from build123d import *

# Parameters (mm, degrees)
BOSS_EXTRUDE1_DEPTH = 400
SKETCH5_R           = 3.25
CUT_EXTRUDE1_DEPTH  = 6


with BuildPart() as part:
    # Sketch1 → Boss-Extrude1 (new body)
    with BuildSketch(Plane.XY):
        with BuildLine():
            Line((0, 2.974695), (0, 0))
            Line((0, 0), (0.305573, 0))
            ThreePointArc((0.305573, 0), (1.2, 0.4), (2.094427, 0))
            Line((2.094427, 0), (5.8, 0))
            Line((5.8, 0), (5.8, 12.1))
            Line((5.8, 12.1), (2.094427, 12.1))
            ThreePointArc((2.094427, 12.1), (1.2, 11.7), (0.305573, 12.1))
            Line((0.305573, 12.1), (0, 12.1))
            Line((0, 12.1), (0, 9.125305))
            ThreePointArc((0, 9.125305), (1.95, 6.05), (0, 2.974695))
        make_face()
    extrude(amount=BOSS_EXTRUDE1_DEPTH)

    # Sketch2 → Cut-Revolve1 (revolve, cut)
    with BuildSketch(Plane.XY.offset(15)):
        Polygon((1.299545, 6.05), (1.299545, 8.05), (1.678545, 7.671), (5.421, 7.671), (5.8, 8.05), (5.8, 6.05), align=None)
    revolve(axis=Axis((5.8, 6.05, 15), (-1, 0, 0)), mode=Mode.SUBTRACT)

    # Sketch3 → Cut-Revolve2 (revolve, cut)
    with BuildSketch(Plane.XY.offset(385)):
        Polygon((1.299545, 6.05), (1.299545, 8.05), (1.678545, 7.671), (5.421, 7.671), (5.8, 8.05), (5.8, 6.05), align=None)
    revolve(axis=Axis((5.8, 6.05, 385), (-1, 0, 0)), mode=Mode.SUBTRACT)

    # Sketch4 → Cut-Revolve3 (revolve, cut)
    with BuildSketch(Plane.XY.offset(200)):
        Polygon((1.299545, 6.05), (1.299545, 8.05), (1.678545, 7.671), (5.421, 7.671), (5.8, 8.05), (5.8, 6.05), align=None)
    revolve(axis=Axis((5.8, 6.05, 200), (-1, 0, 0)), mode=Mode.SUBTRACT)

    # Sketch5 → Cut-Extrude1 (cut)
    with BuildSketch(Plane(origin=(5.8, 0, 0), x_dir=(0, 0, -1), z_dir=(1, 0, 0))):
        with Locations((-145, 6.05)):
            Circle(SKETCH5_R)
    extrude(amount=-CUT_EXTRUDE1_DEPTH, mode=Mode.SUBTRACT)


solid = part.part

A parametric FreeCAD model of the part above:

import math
import FreeCAD as App
import Part
import Sketcher

V = App.Vector


def add_polygon(sketch, points):
    """Adds a closed chain of lines whose ends are joined by coincident constraints."""
    first, n = sketch.GeometryCount, len(points)
    for a, b in zip(points, points[1:] + points[:1]):
        sketch.addGeometry(Part.LineSegment(App.Vector(*a, 0), App.Vector(*b, 0)), False)
    for i in range(n):
        sketch.addConstraint(Sketcher.Constraint("Coincident", first + i, 2, first + (i + 1) % n, 1))

doc = App.newDocument("Part")
body = doc.addObject("PartDesign::Body", "Body")

sketch1 = doc.addObject("Sketcher::SketchObject", "Sketch")
body.addObject(sketch1)
sketch1.AttachmentSupport = (doc.XY_Plane, [""])
sketch1.MapMode = "FlatFace"
sketch1.addGeometry(Part.LineSegment(V(0, 2.97, 0), V(0, 0, 0)), False)
sketch1.addGeometry(Part.LineSegment(V(0, 0, 0), V(0.31, 0, 0)), False)
sketch1.addGeometry(Part.ArcOfCircle(Part.Circle(V(1.2, -0.8, 0), V(0, 0, 1), 1.2), math.radians(42), math.radians(138)), False)
sketch1.addGeometry(Part.LineSegment(V(2.09, 0, 0), V(5.8, 0, 0)), False)
sketch1.addGeometry(Part.LineSegment(V(5.8, 0, 0), V(5.8, 12.1, 0)), False)
sketch1.addGeometry(Part.LineSegment(V(5.8, 12.1, 0), V(2.09, 12.1, 0)), False)
sketch1.addGeometry(Part.ArcOfCircle(Part.Circle(V(1.2, 12.9, 0), V(0, 0, 1), 1.2), math.radians(-138), math.radians(-42)), False)
sketch1.addGeometry(Part.LineSegment(V(0.31, 12.1, 0), V(0, 12.1, 0)), False)
sketch1.addGeometry(Part.LineSegment(V(0, 12.1, 0), V(0, 9.13, 0)), False)
sketch1.addGeometry(Part.ArcOfCircle(Part.Circle(V(-1.45, 6.05, 0), V(0, 0, 1), 3.4), math.radians(-65), math.radians(65)), False)
sketch1.addConstraint(Sketcher.Constraint("Coincident", 0, 2, 1, 1))
sketch1.addConstraint(Sketcher.Constraint("Coincident", 1, 2, 2, 2))
sketch1.addConstraint(Sketcher.Constraint("Coincident", 2, 1, 3, 1))
sketch1.addConstraint(Sketcher.Constraint("Coincident", 3, 2, 4, 1))
sketch1.addConstraint(Sketcher.Constraint("Coincident", 4, 2, 5, 1))
sketch1.addConstraint(Sketcher.Constraint("Coincident", 5, 2, 6, 2))
sketch1.addConstraint(Sketcher.Constraint("Coincident", 6, 1, 7, 1))
sketch1.addConstraint(Sketcher.Constraint("Coincident", 7, 2, 8, 1))
sketch1.addConstraint(Sketcher.Constraint("Coincident", 8, 2, 9, 2))
sketch1.addConstraint(Sketcher.Constraint("Coincident", 9, 1, 0, 1))
sketch1.addConstraint(Sketcher.Constraint("Vertical", 0))
sketch1.addConstraint(Sketcher.Constraint("Horizontal", 1))
sketch1.addConstraint(Sketcher.Constraint("Horizontal", 3))
sketch1.addConstraint(Sketcher.Constraint("Vertical", 4))
sketch1.addConstraint(Sketcher.Constraint("Horizontal", 5))
sketch1.addConstraint(Sketcher.Constraint("Horizontal", 7))
sketch1.addConstraint(Sketcher.Constraint("Vertical", 8))
sketch1.addConstraint(Sketcher.Constraint("Coincident", 0, 2, -1, 1))
sketch1.addConstraint(Sketcher.Constraint("Equal", 2, 6))
sketch1.addConstraint(Sketcher.Constraint("PointOnObject", 2, 1, -1))
sketch1.addConstraint(Sketcher.Constraint("PointOnObject", 7, 2, -2))
sketch1.addConstraint(Sketcher.Constraint("Horizontal", 5, 2, 6, 1))
sketch1.addConstraint(Sketcher.Constraint("Vertical", 2, 3, 6, 3))
sketch1.addConstraint(Sketcher.Constraint("Vertical", 2, 1, 5, 2))
sketch1.addConstraint(Sketcher.Constraint("Equal", 0, 8))
sketch1.addConstraint(Sketcher.Constraint("Radius", 2, 1.2))
sketch1.addConstraint(Sketcher.Constraint("Radius", 9, 3.4))
sketch1.addConstraint(Sketcher.Constraint("DistanceY", 4, 1, 4, 2, 12.1))
sketch1.addConstraint(Sketcher.Constraint("DistanceX", -1, 1, 2, 3, 1.2))
sketch1.addConstraint(Sketcher.Constraint("DistanceY", 2, 3, -1, 1, 0.8))
sketch1.addConstraint(Sketcher.Constraint("DistanceX", -1, 1, 3, 2, 5.8))
sketch1.addConstraint(Sketcher.Constraint("DistanceX", 9, 3, -1, 1, 1.45))
pad1 = doc.addObject("PartDesign::Pad", "Pad")
body.addObject(pad1)
pad1.Profile = sketch1
pad1.Length = 400

sketch2 = doc.addObject("Sketcher::SketchObject", "Sketch001")
body.addObject(sketch2)
sketch2.AttachmentSupport = (doc.XY_Plane, [""])
sketch2.MapMode = "FlatFace"
sketch2.AttachmentOffset = App.Placement(V(0, 0, 15), App.Rotation())
add_polygon(sketch2, [(1.3, 8.1), (1.3, 6), (5.8, 6), (5.8, 8.1), (5.4, 7.7), (1.7, 7.7)])
sketch2.addGeometry(Part.LineSegment(V(5.8, 6, 0), V(1.3, 6, 0)), True)
sketch2.addConstraint(Sketcher.Constraint("Vertical", 0))
sketch2.addConstraint(Sketcher.Constraint("Horizontal", 1))
sketch2.addConstraint(Sketcher.Constraint("Vertical", 2))
sketch2.addConstraint(Sketcher.Constraint("Horizontal", 4))
sketch2.addConstraint(Sketcher.Constraint("Horizontal", 6))
sketch2.addConstraint(Sketcher.Constraint("Coincident", 6, 1, 1, 2))
sketch2.addConstraint(Sketcher.Constraint("Perpendicular", 3, 5))
sketch2.addConstraint(Sketcher.Constraint("Horizontal", 2, 2, 5, 2))
sketch2.addConstraint(Sketcher.Constraint("Vertical", 5, 2, 6, 2))
sketch2.addConstraint(Sketcher.Constraint("Equal", 3, 5))
sketch2.addConstraint(Sketcher.Constraint("DistanceY", 0, 2, 0, 1, 2.0))
sketch2.addConstraint(Sketcher.Constraint("DistanceX", -1, 1, 1, 2, 5.8))
sketch2.addConstraint(Sketcher.Constraint("DistanceY", -1, 1, 0, 2, 6.05))
sketch2.addConstraint(Sketcher.Constraint("DistanceX", -1, 1, 3, 2, 5.421))
sketch2.addConstraint(Sketcher.Constraint("DistanceX", 1, 1, 1, 2, 4.500455))
groove = doc.addObject("PartDesign::Groove", "Groove")
body.addObject(groove)
groove.Profile = sketch2
groove.ReferenceAxis = (sketch2, ["Axis0"])
groove.Angle = 360

sketch3 = doc.addObject("Sketcher::SketchObject", "Sketch002")
body.addObject(sketch3)
sketch3.AttachmentSupport = (doc.XY_Plane, [""])
sketch3.MapMode = "FlatFace"
sketch3.AttachmentOffset = App.Placement(V(0, 0, 385), App.Rotation())
add_polygon(sketch3, [(1.3, 8.1), (1.3, 6), (5.8, 6), (5.8, 8.1), (5.4, 7.7), (1.7, 7.7)])
sketch3.addGeometry(Part.LineSegment(V(5.8, 6, 0), V(1.3, 6, 0)), True)
sketch3.addConstraint(Sketcher.Constraint("Vertical", 0))
sketch3.addConstraint(Sketcher.Constraint("Horizontal", 1))
sketch3.addConstraint(Sketcher.Constraint("Vertical", 2))
sketch3.addConstraint(Sketcher.Constraint("Horizontal", 4))
sketch3.addConstraint(Sketcher.Constraint("Horizontal", 6))
sketch3.addConstraint(Sketcher.Constraint("Coincident", 6, 1, 1, 2))
sketch3.addConstraint(Sketcher.Constraint("Perpendicular", 3, 5))
sketch3.addConstraint(Sketcher.Constraint("Horizontal", 2, 2, 5, 2))
sketch3.addConstraint(Sketcher.Constraint("Vertical", 5, 2, 6, 2))
sketch3.addConstraint(Sketcher.Constraint("Equal", 3, 5))
sketch3.addConstraint(Sketcher.Constraint("DistanceY", 0, 2, 0, 1, 2.0))
sketch3.addConstraint(Sketcher.Constraint("DistanceX", -1, 1, 1, 2, 5.8))
sketch3.addConstraint(Sketcher.Constraint("DistanceY", -1, 1, 0, 2, 6.05))
sketch3.addConstraint(Sketcher.Constraint("DistanceX", -1, 1, 3, 2, 5.421))
sketch3.addConstraint(Sketcher.Constraint("DistanceX", 1, 1, 1, 2, 4.500455))
groove2 = doc.addObject("PartDesign::Groove", "Groove001")
body.addObject(groove2)
groove2.Profile = sketch3
groove2.ReferenceAxis = (sketch3, ["Axis0"])
groove2.Angle = 360

sketch4 = doc.addObject("Sketcher::SketchObject", "Sketch003")
body.addObject(sketch4)
sketch4.AttachmentSupport = (doc.XY_Plane, [""])
sketch4.MapMode = "FlatFace"
sketch4.AttachmentOffset = App.Placement(V(0, 0, 200), App.Rotation())
add_polygon(sketch4, [(1.3, 8.1), (1.3, 6), (5.8, 6), (5.8, 8.1), (5.4, 7.7), (1.7, 7.7)])
sketch4.addGeometry(Part.LineSegment(V(5.8, 6, 0), V(1.3, 6, 0)), True)
sketch4.addConstraint(Sketcher.Constraint("Vertical", 0))
sketch4.addConstraint(Sketcher.Constraint("Horizontal", 1))
sketch4.addConstraint(Sketcher.Constraint("Vertical", 2))
sketch4.addConstraint(Sketcher.Constraint("Horizontal", 4))
sketch4.addConstraint(Sketcher.Constraint("Horizontal", 6))
sketch4.addConstraint(Sketcher.Constraint("Coincident", 6, 1, 1, 2))
sketch4.addConstraint(Sketcher.Constraint("Perpendicular", 3, 5))
sketch4.addConstraint(Sketcher.Constraint("Horizontal", 2, 2, 5, 2))
sketch4.addConstraint(Sketcher.Constraint("Vertical", 5, 2, 6, 2))
sketch4.addConstraint(Sketcher.Constraint("Equal", 3, 5))
sketch4.addConstraint(Sketcher.Constraint("DistanceY", 0, 2, 0, 1, 2.0))
sketch4.addConstraint(Sketcher.Constraint("DistanceX", -1, 1, 1, 2, 5.8))
sketch4.addConstraint(Sketcher.Constraint("DistanceY", -1, 1, 0, 2, 6.05))
sketch4.addConstraint(Sketcher.Constraint("DistanceX", -1, 1, 3, 2, 5.421))
sketch4.addConstraint(Sketcher.Constraint("DistanceX", 1, 1, 1, 2, 4.500455))
groove3 = doc.addObject("PartDesign::Groove", "Groove002")
body.addObject(groove3)
groove3.Profile = sketch4
groove3.ReferenceAxis = (sketch4, ["Axis0"])
groove3.Angle = 360

sketch5 = doc.addObject("Sketcher::SketchObject", "Sketch004")
body.addObject(sketch5)
sketch5.AttachmentSupport = (doc.YZ_Plane, [""])
sketch5.MapMode = "FlatFace"
sketch5.AttachmentOffset = App.Placement(V(0, 0, 5.8), App.Rotation())
sketch5.addGeometry(Part.Circle(V(6, 145, 0), V(0, 0, 1), 3.2), False)
sketch5.addConstraint(Sketcher.Constraint("Diameter", 0, 6.5))
sketch5.addConstraint(Sketcher.Constraint("DistanceY", -1, 1, 0, 3, 145.0))
sketch5.addConstraint(Sketcher.Constraint("DistanceX", -1, 1, 0, 3, 6.05))
pocket1 = doc.addObject("PartDesign::Pocket", "Pocket")
body.addObject(pocket1)
pocket1.Profile = sketch5
pocket1.Length = 6

doc.recompute()
